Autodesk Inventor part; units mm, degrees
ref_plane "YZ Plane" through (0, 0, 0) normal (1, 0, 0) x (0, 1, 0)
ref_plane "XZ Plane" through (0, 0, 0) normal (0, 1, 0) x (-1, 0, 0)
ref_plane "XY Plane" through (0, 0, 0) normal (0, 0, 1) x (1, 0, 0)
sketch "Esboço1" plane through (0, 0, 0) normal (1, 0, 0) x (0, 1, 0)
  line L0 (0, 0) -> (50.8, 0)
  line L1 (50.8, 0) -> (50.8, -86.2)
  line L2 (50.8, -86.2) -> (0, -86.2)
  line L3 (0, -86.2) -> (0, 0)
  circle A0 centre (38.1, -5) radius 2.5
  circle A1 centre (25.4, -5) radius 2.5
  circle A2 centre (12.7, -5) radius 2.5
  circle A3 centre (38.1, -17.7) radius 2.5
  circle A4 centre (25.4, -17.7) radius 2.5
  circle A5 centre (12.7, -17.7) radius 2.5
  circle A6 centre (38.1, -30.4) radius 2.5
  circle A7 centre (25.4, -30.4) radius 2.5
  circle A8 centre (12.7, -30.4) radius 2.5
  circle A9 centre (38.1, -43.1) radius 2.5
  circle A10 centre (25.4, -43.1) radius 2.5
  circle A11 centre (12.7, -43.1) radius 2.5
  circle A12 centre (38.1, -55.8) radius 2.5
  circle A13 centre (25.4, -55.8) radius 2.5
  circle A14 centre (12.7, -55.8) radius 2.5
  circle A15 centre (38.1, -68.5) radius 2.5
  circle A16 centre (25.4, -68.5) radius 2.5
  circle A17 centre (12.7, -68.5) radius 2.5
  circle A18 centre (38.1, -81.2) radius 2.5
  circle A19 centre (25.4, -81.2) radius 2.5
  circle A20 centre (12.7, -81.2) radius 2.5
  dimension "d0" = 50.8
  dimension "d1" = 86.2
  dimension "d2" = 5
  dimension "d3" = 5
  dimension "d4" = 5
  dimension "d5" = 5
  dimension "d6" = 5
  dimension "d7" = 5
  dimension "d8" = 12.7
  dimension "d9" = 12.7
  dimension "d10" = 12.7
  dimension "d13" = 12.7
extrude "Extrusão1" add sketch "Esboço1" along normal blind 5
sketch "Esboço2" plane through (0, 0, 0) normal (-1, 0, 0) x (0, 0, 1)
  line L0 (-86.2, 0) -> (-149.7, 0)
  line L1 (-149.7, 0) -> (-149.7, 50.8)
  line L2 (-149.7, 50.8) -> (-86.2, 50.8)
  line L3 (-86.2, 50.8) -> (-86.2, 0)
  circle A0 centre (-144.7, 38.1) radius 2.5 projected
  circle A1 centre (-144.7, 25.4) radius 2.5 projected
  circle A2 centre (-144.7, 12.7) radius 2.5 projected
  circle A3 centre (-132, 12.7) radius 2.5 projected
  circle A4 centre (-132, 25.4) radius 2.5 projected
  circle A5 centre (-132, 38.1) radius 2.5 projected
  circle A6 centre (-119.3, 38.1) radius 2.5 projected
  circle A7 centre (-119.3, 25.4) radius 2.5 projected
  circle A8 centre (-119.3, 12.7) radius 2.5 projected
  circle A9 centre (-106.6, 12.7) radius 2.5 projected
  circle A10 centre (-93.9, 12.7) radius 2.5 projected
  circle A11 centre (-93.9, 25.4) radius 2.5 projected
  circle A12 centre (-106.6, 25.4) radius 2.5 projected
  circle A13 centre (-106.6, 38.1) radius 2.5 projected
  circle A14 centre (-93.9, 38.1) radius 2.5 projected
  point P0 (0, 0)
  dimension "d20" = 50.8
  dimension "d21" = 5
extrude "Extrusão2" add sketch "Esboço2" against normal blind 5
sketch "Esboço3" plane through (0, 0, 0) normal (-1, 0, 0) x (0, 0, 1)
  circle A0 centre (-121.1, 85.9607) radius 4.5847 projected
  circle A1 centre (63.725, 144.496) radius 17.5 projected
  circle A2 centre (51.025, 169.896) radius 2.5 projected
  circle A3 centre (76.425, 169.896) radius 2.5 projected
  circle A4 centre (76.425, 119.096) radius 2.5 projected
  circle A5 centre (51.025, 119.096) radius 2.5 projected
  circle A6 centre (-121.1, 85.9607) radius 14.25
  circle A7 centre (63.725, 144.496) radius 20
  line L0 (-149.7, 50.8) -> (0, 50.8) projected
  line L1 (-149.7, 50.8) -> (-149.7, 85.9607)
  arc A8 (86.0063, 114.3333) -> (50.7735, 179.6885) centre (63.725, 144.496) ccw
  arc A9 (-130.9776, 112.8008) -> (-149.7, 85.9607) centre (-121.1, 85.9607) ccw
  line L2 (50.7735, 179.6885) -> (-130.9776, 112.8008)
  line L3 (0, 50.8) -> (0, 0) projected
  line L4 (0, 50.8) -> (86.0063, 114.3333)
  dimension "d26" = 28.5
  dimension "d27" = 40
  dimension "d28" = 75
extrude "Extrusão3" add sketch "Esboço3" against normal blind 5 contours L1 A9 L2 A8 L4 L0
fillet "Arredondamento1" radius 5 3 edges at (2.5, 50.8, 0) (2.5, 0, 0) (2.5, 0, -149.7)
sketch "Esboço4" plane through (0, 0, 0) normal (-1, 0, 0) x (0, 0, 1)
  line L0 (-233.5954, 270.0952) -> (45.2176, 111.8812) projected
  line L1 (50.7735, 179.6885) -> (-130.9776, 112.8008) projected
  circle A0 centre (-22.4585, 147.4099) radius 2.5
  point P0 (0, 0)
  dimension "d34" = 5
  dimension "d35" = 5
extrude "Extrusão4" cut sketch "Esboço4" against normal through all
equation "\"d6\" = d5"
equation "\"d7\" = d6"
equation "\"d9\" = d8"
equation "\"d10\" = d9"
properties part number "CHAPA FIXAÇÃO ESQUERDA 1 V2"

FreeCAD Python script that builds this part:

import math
import FreeCAD as App
import Part
import Sketcher

V = App.Vector


def edges_at(feature, points):
    """Names of the edges that pass closest to the given points."""
    edges = feature.Shape.Edges
    near = lambda p: min(range(len(edges)), key=lambda i: edges[i].distToShape(Part.Vertex(*p))[0])
    return sorted({f"Edge{near(p) + 1}" for p in points})


def add_polygon(sketch, points):
    """Adds a closed chain of lines whose ends are joined by coincident constraints."""
    first, n = sketch.GeometryCount, len(points)
    for a, b in zip(points, points[1:] + points[:1]):
        sketch.addGeometry(Part.LineSegment(App.Vector(*a, 0), App.Vector(*b, 0)), False)
    for i in range(n):
        sketch.addConstraint(Sketcher.Constraint("Coincident", first + i, 2, first + (i + 1) % n, 1))

doc = App.newDocument("Part")
body = doc.addObject("PartDesign::Body", "Body")

# Sketch on YZ plane
sketch1 = body.newObject("Sketcher::SketchObject", "Sketch")
sketch1.AttachmentSupport = (doc.getObject("YZ_Plane"), [""])
sketch1.MapMode = "FlatFace"
add_polygon(sketch1, [(50.8, 0), (0, 0), (0, -86.2), (50.8, -86.2)])  # lines 0-3
sketch1.addGeometry(Part.Circle(V(12.7, -81.2, 0), V(0, 0, 1), 2.5), False)  # 4
sketch1.addGeometry(Part.Circle(V(12.7, -68.5, 0), V(0, 0, 1), 2.5), False)  # 5
sketch1.addGeometry(Part.Circle(V(25.4, -81.2, 0), V(0, 0, 1), 2.5), False)  # 6
sketch1.addGeometry(Part.Circle(V(25.4, -68.5, 0), V(0, 0, 1), 2.5), False)  # 7
sketch1.addGeometry(Part.Circle(V(12.7, -55.8, 0), V(0, 0, 1), 2.5), False)  # 8
sketch1.addGeometry(Part.Circle(V(25.4, -55.8, 0), V(0, 0, 1), 2.5), False)  # 9
sketch1.addGeometry(Part.Circle(V(38.1, -81.2, 0), V(0, 0, 1), 2.5), False)  # 10
sketch1.addGeometry(Part.Circle(V(38.1, -68.5, 0), V(0, 0, 1), 2.5), False)  # 11
sketch1.addGeometry(Part.Circle(V(38.1, -55.8, 0), V(0, 0, 1), 2.5), False)  # 12
sketch1.addGeometry(Part.Circle(V(12.7, -43.1, 0), V(0, 0, 1), 2.5), False)  # 13
sketch1.addGeometry(Part.Circle(V(12.7, -30.4, 0), V(0, 0, 1), 2.5), False)  # 14
sketch1.addGeometry(Part.Circle(V(25.4, -43.1, 0), V(0, 0, 1), 2.5), False)  # 15
sketch1.addGeometry(Part.Circle(V(25.4, -30.4, 0), V(0, 0, 1), 2.5), False)  # 16
sketch1.addGeometry(Part.Circle(V(12.7, -17.7, 0), V(0, 0, 1), 2.5), False)  # 17
sketch1.addGeometry(Part.Circle(V(12.7, -5, 0), V(0, 0, 1), 2.5), False)  # 18
sketch1.addGeometry(Part.Circle(V(25.4, -17.7, 0), V(0, 0, 1), 2.5), False)  # 19
sketch1.addGeometry(Part.Circle(V(25.4, -5, 0), V(0, 0, 1), 2.5), False)  # 20
sketch1.addGeometry(Part.Circle(V(38.1, -43.1, 0), V(0, 0, 1), 2.5), False)  # 21
sketch1.addGeometry(Part.Circle(V(38.1, -30.4, 0), V(0, 0, 1), 2.5), False)  # 22
sketch1.addGeometry(Part.Circle(V(38.1, -17.7, 0), V(0, 0, 1), 2.5), False)  # 23
sketch1.addGeometry(Part.Circle(V(38.1, -5, 0), V(0, 0, 1), 2.5), False)  # 24
sketch1.addConstraint([
    Sketcher.Constraint("Horizontal", 0),
    Sketcher.Constraint("Vertical", 1),
    Sketcher.Constraint("Horizontal", 2),
    Sketcher.Constraint("Vertical", 3),
    Sketcher.Constraint("Coincident", 0, 2, -1, 1),
    Sketcher.Constraint("Equal", 4, 5),
    Sketcher.Constraint("Equal", 5, 6),
    Sketcher.Constraint("Equal", 6, 7),
    Sketcher.Constraint("Equal", 7, 8),
    Sketcher.Constraint("Equal", 8, 9),
    Sketcher.Constraint("Equal", 9, 10),
    Sketcher.Constraint("Equal", 10, 11),
    Sketcher.Constraint("Equal", 11, 12),
    Sketcher.Constraint("Equal", 12, 13),
    Sketcher.Constraint("Equal", 13, 14),
    Sketcher.Constraint("Equal", 14, 15),
    Sketcher.Constraint("Equal", 15, 16),
    Sketcher.Constraint("Equal", 16, 17),
    Sketcher.Constraint("Equal", 17, 18),
    Sketcher.Constraint("Equal", 18, 19),
    Sketcher.Constraint("Equal", 19, 20),
    Sketcher.Constraint("Equal", 20, 21),
    Sketcher.Constraint("Equal", 21, 22),
    Sketcher.Constraint("Equal", 22, 23),
    Sketcher.Constraint("Equal", 23, 24),
    Sketcher.Constraint("Horizontal", 4, 3, 6, 3),
    Sketcher.Constraint("Horizontal", 5, 3, 7, 3),
    Sketcher.Constraint("Horizontal", 8, 3, 9, 3),
    Sketcher.Constraint("Horizontal", 6, 3, 10, 3),
    Sketcher.Constraint("Horizontal", 7, 3, 11, 3),
    Sketcher.Constraint("Horizontal", 9, 3, 12, 3),
    Sketcher.Constraint("Horizontal", 13, 3, 15, 3),
    Sketcher.Constraint("Horizontal", 14, 3, 16, 3),
    Sketcher.Constraint("Horizontal", 17, 3, 19, 3),
    Sketcher.Constraint("Horizontal", 18, 3, 20, 3),
    Sketcher.Constraint("Horizontal", 15, 3, 21, 3),
    Sketcher.Constraint("Horizontal", 16, 3, 22, 3),
    Sketcher.Constraint("Horizontal", 19, 3, 23, 3),
    Sketcher.Constraint("Horizontal", 20, 3, 24, 3),
    Sketcher.Constraint("Vertical", 4, 3, 5, 3),
    Sketcher.Constraint("Vertical", 6, 3, 7, 3),
    Sketcher.Constraint("Vertical", 5, 3, 8, 3),
    Sketcher.Constraint("Vertical", 7, 3, 9, 3),
    Sketcher.Constraint("Vertical", 10, 3, 11, 3),
    Sketcher.Constraint("Vertical", 11, 3, 12, 3),
    Sketcher.Constraint("Vertical", 8, 3, 13, 3),
    Sketcher.Constraint("Vertical", 13, 3, 14, 3),
    Sketcher.Constraint("Vertical", 9, 3, 15, 3),
    Sketcher.Constraint("Vertical", 15, 3, 16, 3),
    Sketcher.Constraint("Vertical", 14, 3, 17, 3),
    Sketcher.Constraint("Vertical", 17, 3, 18, 3),
    Sketcher.Constraint("Vertical", 16, 3, 19, 3),
    Sketcher.Constraint("Vertical", 19, 3, 20, 3),
    Sketcher.Constraint("Vertical", 12, 3, 21, 3),
    Sketcher.Constraint("Vertical", 21, 3, 22, 3),
    Sketcher.Constraint("Vertical", 22, 3, 23, 3),
    Sketcher.Constraint("Vertical", 23, 3, 24, 3),
    Sketcher.Constraint("Diameter", 4, 5.0),
    Sketcher.Constraint("DistanceX", 0, 2, 0, 1, 50.8),
    Sketcher.Constraint("DistanceY", 1, 2, 1, 1, 86.2),
    Sketcher.Constraint("DistanceY", 18, 3, -1, 1, 5.0),
    Sketcher.Constraint("DistanceY", 1, 2, 4, 3, 5.0),
    Sketcher.Constraint("DistanceX", -1, 1, 4, 3, 12.7),
    Sketcher.Constraint("DistanceY", 4, 3, 5, 3, 12.7),
    Sketcher.Constraint("DistanceX", 4, 3, 6, 3, 12.7),
    Sketcher.Constraint("DistanceY", 5, 3, 8, 3, 12.7),
    Sketcher.Constraint("DistanceX", 6, 3, 10, 3, 12.7),
    Sketcher.Constraint("DistanceY", 8, 3, 13, 3, 12.7),
    Sketcher.Constraint("DistanceY", 13, 3, 14, 3, 12.7),
    Sketcher.Constraint("DistanceY", 14, 3, 17, 3, 12.7),
])
pad1 = body.newObject("PartDesign::Pad", "Pad")
pad1.Profile = sketch1
pad1.Length = 5

# Sketch on YZ plane
sketch2 = body.newObject("Sketcher::SketchObject", "Sketch001")
sketch2.AttachmentSupport = (doc.getObject("YZ_Plane"), [""])
sketch2.MapMode = "FlatFace"
add_polygon(sketch2, [(0, -149.7), (0, -86.2), (50.8, -86.2), (50.8, -149.7)])  # lines 0-3
sketch2.addGeometry(Part.Circle(V(12.7, -144.7, 0), V(0, 0, 1), 2.5), False)  # 4
sketch2.addGeometry(Part.Circle(V(12.7, -132, 0), V(0, 0, 1), 2.5), False)  # 5
sketch2.addGeometry(Part.Circle(V(12.7, -119.3, 0), V(0, 0, 1), 2.5), False)  # 6
sketch2.addGeometry(Part.Circle(V(25.4, -144.7, 0), V(0, 0, 1), 2.5), False)  # 7
sketch2.addGeometry(Part.Circle(V(25.4, -132, 0), V(0, 0, 1), 2.5), False)  # 8
sketch2.addGeometry(Part.Circle(V(25.4, -119.3, 0), V(0, 0, 1), 2.5), False)  # 9
sketch2.addGeometry(Part.Circle(V(12.7, -106.6, 0), V(0, 0, 1), 2.5), False)  # 10
sketch2.addGeometry(Part.Circle(V(12.7, -93.9, 0), V(0, 0, 1), 2.5), False)  # 11
sketch2.addGeometry(Part.Circle(V(25.4, -106.6, 0), V(0, 0, 1), 2.5), False)  # 12
sketch2.addGeometry(Part.Circle(V(25.4, -93.9, 0), V(0, 0, 1), 2.5), False)  # 13
sketch2.addGeometry(Part.Circle(V(38.1, -144.7, 0), V(0, 0, 1), 2.5), False)  # 14
sketch2.addGeometry(Part.Circle(V(38.1, -132, 0), V(0, 0, 1), 2.5), False)  # 15
sketch2.addGeometry(Part.Circle(V(38.1, -119.3, 0), V(0, 0, 1), 2.5), False)  # 16
sketch2.addGeometry(Part.Circle(V(38.1, -106.6, 0), V(0, 0, 1), 2.5), False)  # 17
sketch2.addGeometry(Part.Circle(V(38.1, -93.9, 0), V(0, 0, 1), 2.5), False)  # 18
sketch2.addConstraint([
    Sketcher.Constraint("Vertical", 0),
    Sketcher.Constraint("Horizontal", 1),
    Sketcher.Constraint("Vertical", 2),
    Sketcher.Constraint("Horizontal", 3),
    Sketcher.Constraint("Equal", 4, 5),
    Sketcher.Constraint("Equal", 5, 6),
    Sketcher.Constraint("Equal", 6, 7),
    Sketcher.Constraint("Equal", 7, 8),
    Sketcher.Constraint("Equal", 8, 9),
    Sketcher.Constraint("Equal", 9, 10),
    Sketcher.Constraint("Equal", 10, 11),
    Sketcher.Constraint("Equal", 11, 12),
    Sketcher.Constraint("Equal", 12, 13),
    Sketcher.Constraint("Equal", 13, 14),
    Sketcher.Constraint("Equal", 14, 15),
    Sketcher.Constraint("Equal", 15, 16),
    Sketcher.Constraint("Equal", 16, 17),
    Sketcher.Constraint("Equal", 17, 18),
    Sketcher.Constraint("PointOnObject", 0, 2, -2),
    Sketcher.Constraint("Horizontal", 4, 3, 7, 3),
    Sketcher.Constraint("Horizontal", 5, 3, 8, 3),
    Sketcher.Constraint("Horizontal", 6, 3, 9, 3),
    Sketcher.Constraint("Horizontal", 10, 3, 12, 3),
    Sketcher.Constraint("Horizontal", 11, 3, 13, 3),
    Sketcher.Constraint("Horizontal", 7, 3, 14, 3),
    Sketcher.Constraint("Horizontal", 8, 3, 15, 3),
    Sketcher.Constraint("Horizontal", 9, 3, 16, 3),
    Sketcher.Constraint("Horizontal", 12, 3, 17, 3),
    Sketcher.Constraint("Horizontal", 13, 3, 18, 3),
    Sketcher.Constraint("Vertical", 4, 3, 5, 3),
    Sketcher.Constraint("Vertical", 5, 3, 6, 3),
    Sketcher.Constraint("Vertical", 7, 3, 8, 3),
    Sketcher.Constraint("Vertical", 8, 3, 9, 3),
    Sketcher.Constraint("Vertical", 6, 3, 10, 3),
    Sketcher.Constraint("Vertical", 10, 3, 11, 3),
    Sketcher.Constraint("Vertical", 9, 3, 12, 3),
    Sketcher.Constraint("Vertical", 12, 3, 13, 3),
    Sketcher.Constraint("Vertical", 14, 3, 15, 3),
    Sketcher.Constraint("Vertical", 15, 3, 16, 3),
    Sketcher.Constraint("Vertical", 16, 3, 17, 3),
    Sketcher.Constraint("Vertical", 17, 3, 18, 3),
    Sketcher.Constraint("Diameter", 4, 5.0),
    Sketcher.Constraint("DistanceX", 1, 1, 1, 2, 50.8),
    Sketcher.Constraint("DistanceY", 2, 2, 14, 3, 5.0),
    Sketcher.Constraint("DistanceY", 0, 1, 0, 2, 63.5),
    Sketcher.Constraint("DistanceY", 5, 3, -1, 1, 132.0),
    Sketcher.Constraint("DistanceX", -1, 1, 4, 3, 12.7),
    Sketcher.Constraint("DistanceY", 4, 3, -1, 1, 144.7),
    Sketcher.Constraint("DistanceY", 6, 3, -1, 1, 119.3),
    Sketcher.Constraint("DistanceX", -1, 1, 7, 3, 25.4),
    Sketcher.Constraint("DistanceY", 10, 3, -1, 1, 106.6),
    Sketcher.Constraint("DistanceY", 11, 3, -1, 1, 93.9),
    Sketcher.Constraint("DistanceX", -1, 1, 14, 3, 38.1),
])
pad2 = body.newObject("PartDesign::Pad", "Pad001")
pad2.Profile = sketch2
pad2.Length = 5

# Sketch on YZ plane
sketch3 = body.newObject("Sketcher::SketchObject", "Sketch002")
sketch3.AttachmentSupport = (doc.getObject("YZ_Plane"), [""])
sketch3.MapMode = "FlatFace"
sketch3.addGeometry([
    Part.LineSegment(V(85.9607, -149.7, 0), V(50.8, -149.7, 0)),  # 0
    Part.LineSegment(V(50.8, -149.7, 0), V(50.8, 0, 0)),  # 1
    Part.LineSegment(V(50.8, 0, 0), V(114.3333, 86.0063, 0)),  # 2
    Part.ArcOfCircle(Part.Circle(V(144.496, 63.725, 0), V(0, 0, 1), 37.499931), math.radians(-20.204562), math.radians(143.546578)),  # 3
    Part.LineSegment(V(179.6885, 50.7735, 0), V(112.8008, -130.9776, 0)),  # 4
    Part.ArcOfCircle(Part.Circle(V(85.9607, -121.1, 0), V(0, 0, 1), 28.599964), math.radians(-90), math.radians(-20.204448)),  # 5
    Part.Circle(V(85.9607, -121.1, 0), V(0, 0, 1), 14.25),  # 6
    Part.Circle(V(119.096, 51.025, 0), V(0, 0, 1), 2.5),  # 7
    Part.Circle(V(119.096, 76.425, 0), V(0, 0, 1), 2.5),  # 8
    Part.Circle(V(144.496, 63.725, 0), V(0, 0, 1), 20),  # 9
    Part.Circle(V(169.896, 51.025, 0), V(0, 0, 1), 2.5),  # 10
    Part.Circle(V(169.896, 76.425, 0), V(0, 0, 1), 2.5),  # 11
], False)
sketch3.addConstraint([
    Sketcher.Constraint("Coincident", 0, 2, 1, 1),
    Sketcher.Constraint("Coincident", 1, 2, 2, 1),
    Sketcher.Constraint("Coincident", 2, 2, 3, 2),
    Sketcher.Constraint("Coincident", 3, 1, 4, 1),
    Sketcher.Constraint("Coincident", 4, 2, 5, 2),
    Sketcher.Constraint("Coincident", 5, 1, 0, 1),
    Sketcher.Constraint("Horizontal", 0),
    Sketcher.Constraint("Vertical", 1),
    Sketcher.Constraint("Coincident", 6, 3, 5, 3),
    Sketcher.Constraint("Coincident", 9, 3, 3, 3),
    Sketcher.Constraint("PointOnObject", 1, 2, -1),
    Sketcher.Constraint("Diameter", 9, 40.0),
    Sketcher.Constraint("Diameter", 6, 28.5),
    Sketcher.Constraint("Radius", 3, 37.5),
    Sketcher.Constraint("Diameter", 7, 5.0),
    Sketcher.Constraint("Diameter", 8, 5.0),
    Sketcher.Constraint("Diameter", 10, 5.0),
    Sketcher.Constraint("Diameter", 11, 5.0),
    Sketcher.Constraint("Radius", 5, 28.6),
    Sketcher.Constraint("DistanceY", 1, 1, 1, 2, 149.7),
    Sketcher.Constraint("DistanceX", -1, 1, 0, 2, 50.8),
    Sketcher.Constraint("DistanceX", 7, 3, 3, 3, 25.4),
    Sketcher.Constraint("DistanceY", 7, 3, 3, 3, 12.7),
    Sketcher.Constraint("DistanceY", 7, 3, 8, 3, 25.4),
    Sketcher.Constraint("DistanceX", 8, 3, 3, 3, 25.4),
    Sketcher.Constraint("DistanceX", 3, 3, 10, 3, 25.4),
    Sketcher.Constraint("DistanceY", 10, 3, 3, 3, 12.7),
    Sketcher.Constraint("DistanceY", 10, 3, 11, 3, 25.4),
    Sketcher.Constraint("DistanceX", 3, 3, 11, 3, 25.4),
    Sketcher.Constraint("DistanceX", 5, 3, 4, 2, 26.84),
    Sketcher.Constraint("DistanceX", 5, 1, 4, 2, 26.84),
    Sketcher.Constraint("DistanceX", 0, 2, 0, 1, 35.1607),
    Sketcher.Constraint("DistanceX", -1, 1, 3, 3, 144.496),
    Sketcher.Constraint("DistanceY", -1, 1, 3, 3, 63.725),
    Sketcher.Constraint("Distance", 2, 106.9278),
    Sketcher.Constraint("Distance", 4, 193.6683),
])
pad3 = body.newObject("PartDesign::Pad", "Pad002")
pad3.Profile = sketch3
pad3.Length = 5
doc.recompute()

fillet = body.newObject("PartDesign::Fillet", "Fillet")
fillet.Base = (pad3, edges_at(pad3, [(2.5, 50.8, 0), (2.5, 0, 0), (2.5, 0, -149.7)]))
fillet.Radius = 5

# Sketch on YZ plane
sketch4 = body.newObject("Sketcher::SketchObject", "Sketch003")
sketch4.AttachmentSupport = (doc.getObject("YZ_Plane"), [""])
sketch4.MapMode = "FlatFace"
sketch4.addGeometry(Part.Circle(V(147.4099, -22.4585, 0), V(0, 0, 1), 2.5), False)
sketch4.addConstraint([
    Sketcher.Constraint("Diameter", 0, 5.0),
    Sketcher.Constraint("DistanceX", -1, 1, 0, 3, 147.41),
    Sketcher.Constraint("DistanceY", 0, 3, -1, 1, 22.4585),
])
pocket1 = body.newObject("PartDesign::Pocket", "Pocket")
pocket1.Profile = sketch4
pocket1.Type = "ThroughAll"
pocket1.Reversed = True

doc.recompute()
